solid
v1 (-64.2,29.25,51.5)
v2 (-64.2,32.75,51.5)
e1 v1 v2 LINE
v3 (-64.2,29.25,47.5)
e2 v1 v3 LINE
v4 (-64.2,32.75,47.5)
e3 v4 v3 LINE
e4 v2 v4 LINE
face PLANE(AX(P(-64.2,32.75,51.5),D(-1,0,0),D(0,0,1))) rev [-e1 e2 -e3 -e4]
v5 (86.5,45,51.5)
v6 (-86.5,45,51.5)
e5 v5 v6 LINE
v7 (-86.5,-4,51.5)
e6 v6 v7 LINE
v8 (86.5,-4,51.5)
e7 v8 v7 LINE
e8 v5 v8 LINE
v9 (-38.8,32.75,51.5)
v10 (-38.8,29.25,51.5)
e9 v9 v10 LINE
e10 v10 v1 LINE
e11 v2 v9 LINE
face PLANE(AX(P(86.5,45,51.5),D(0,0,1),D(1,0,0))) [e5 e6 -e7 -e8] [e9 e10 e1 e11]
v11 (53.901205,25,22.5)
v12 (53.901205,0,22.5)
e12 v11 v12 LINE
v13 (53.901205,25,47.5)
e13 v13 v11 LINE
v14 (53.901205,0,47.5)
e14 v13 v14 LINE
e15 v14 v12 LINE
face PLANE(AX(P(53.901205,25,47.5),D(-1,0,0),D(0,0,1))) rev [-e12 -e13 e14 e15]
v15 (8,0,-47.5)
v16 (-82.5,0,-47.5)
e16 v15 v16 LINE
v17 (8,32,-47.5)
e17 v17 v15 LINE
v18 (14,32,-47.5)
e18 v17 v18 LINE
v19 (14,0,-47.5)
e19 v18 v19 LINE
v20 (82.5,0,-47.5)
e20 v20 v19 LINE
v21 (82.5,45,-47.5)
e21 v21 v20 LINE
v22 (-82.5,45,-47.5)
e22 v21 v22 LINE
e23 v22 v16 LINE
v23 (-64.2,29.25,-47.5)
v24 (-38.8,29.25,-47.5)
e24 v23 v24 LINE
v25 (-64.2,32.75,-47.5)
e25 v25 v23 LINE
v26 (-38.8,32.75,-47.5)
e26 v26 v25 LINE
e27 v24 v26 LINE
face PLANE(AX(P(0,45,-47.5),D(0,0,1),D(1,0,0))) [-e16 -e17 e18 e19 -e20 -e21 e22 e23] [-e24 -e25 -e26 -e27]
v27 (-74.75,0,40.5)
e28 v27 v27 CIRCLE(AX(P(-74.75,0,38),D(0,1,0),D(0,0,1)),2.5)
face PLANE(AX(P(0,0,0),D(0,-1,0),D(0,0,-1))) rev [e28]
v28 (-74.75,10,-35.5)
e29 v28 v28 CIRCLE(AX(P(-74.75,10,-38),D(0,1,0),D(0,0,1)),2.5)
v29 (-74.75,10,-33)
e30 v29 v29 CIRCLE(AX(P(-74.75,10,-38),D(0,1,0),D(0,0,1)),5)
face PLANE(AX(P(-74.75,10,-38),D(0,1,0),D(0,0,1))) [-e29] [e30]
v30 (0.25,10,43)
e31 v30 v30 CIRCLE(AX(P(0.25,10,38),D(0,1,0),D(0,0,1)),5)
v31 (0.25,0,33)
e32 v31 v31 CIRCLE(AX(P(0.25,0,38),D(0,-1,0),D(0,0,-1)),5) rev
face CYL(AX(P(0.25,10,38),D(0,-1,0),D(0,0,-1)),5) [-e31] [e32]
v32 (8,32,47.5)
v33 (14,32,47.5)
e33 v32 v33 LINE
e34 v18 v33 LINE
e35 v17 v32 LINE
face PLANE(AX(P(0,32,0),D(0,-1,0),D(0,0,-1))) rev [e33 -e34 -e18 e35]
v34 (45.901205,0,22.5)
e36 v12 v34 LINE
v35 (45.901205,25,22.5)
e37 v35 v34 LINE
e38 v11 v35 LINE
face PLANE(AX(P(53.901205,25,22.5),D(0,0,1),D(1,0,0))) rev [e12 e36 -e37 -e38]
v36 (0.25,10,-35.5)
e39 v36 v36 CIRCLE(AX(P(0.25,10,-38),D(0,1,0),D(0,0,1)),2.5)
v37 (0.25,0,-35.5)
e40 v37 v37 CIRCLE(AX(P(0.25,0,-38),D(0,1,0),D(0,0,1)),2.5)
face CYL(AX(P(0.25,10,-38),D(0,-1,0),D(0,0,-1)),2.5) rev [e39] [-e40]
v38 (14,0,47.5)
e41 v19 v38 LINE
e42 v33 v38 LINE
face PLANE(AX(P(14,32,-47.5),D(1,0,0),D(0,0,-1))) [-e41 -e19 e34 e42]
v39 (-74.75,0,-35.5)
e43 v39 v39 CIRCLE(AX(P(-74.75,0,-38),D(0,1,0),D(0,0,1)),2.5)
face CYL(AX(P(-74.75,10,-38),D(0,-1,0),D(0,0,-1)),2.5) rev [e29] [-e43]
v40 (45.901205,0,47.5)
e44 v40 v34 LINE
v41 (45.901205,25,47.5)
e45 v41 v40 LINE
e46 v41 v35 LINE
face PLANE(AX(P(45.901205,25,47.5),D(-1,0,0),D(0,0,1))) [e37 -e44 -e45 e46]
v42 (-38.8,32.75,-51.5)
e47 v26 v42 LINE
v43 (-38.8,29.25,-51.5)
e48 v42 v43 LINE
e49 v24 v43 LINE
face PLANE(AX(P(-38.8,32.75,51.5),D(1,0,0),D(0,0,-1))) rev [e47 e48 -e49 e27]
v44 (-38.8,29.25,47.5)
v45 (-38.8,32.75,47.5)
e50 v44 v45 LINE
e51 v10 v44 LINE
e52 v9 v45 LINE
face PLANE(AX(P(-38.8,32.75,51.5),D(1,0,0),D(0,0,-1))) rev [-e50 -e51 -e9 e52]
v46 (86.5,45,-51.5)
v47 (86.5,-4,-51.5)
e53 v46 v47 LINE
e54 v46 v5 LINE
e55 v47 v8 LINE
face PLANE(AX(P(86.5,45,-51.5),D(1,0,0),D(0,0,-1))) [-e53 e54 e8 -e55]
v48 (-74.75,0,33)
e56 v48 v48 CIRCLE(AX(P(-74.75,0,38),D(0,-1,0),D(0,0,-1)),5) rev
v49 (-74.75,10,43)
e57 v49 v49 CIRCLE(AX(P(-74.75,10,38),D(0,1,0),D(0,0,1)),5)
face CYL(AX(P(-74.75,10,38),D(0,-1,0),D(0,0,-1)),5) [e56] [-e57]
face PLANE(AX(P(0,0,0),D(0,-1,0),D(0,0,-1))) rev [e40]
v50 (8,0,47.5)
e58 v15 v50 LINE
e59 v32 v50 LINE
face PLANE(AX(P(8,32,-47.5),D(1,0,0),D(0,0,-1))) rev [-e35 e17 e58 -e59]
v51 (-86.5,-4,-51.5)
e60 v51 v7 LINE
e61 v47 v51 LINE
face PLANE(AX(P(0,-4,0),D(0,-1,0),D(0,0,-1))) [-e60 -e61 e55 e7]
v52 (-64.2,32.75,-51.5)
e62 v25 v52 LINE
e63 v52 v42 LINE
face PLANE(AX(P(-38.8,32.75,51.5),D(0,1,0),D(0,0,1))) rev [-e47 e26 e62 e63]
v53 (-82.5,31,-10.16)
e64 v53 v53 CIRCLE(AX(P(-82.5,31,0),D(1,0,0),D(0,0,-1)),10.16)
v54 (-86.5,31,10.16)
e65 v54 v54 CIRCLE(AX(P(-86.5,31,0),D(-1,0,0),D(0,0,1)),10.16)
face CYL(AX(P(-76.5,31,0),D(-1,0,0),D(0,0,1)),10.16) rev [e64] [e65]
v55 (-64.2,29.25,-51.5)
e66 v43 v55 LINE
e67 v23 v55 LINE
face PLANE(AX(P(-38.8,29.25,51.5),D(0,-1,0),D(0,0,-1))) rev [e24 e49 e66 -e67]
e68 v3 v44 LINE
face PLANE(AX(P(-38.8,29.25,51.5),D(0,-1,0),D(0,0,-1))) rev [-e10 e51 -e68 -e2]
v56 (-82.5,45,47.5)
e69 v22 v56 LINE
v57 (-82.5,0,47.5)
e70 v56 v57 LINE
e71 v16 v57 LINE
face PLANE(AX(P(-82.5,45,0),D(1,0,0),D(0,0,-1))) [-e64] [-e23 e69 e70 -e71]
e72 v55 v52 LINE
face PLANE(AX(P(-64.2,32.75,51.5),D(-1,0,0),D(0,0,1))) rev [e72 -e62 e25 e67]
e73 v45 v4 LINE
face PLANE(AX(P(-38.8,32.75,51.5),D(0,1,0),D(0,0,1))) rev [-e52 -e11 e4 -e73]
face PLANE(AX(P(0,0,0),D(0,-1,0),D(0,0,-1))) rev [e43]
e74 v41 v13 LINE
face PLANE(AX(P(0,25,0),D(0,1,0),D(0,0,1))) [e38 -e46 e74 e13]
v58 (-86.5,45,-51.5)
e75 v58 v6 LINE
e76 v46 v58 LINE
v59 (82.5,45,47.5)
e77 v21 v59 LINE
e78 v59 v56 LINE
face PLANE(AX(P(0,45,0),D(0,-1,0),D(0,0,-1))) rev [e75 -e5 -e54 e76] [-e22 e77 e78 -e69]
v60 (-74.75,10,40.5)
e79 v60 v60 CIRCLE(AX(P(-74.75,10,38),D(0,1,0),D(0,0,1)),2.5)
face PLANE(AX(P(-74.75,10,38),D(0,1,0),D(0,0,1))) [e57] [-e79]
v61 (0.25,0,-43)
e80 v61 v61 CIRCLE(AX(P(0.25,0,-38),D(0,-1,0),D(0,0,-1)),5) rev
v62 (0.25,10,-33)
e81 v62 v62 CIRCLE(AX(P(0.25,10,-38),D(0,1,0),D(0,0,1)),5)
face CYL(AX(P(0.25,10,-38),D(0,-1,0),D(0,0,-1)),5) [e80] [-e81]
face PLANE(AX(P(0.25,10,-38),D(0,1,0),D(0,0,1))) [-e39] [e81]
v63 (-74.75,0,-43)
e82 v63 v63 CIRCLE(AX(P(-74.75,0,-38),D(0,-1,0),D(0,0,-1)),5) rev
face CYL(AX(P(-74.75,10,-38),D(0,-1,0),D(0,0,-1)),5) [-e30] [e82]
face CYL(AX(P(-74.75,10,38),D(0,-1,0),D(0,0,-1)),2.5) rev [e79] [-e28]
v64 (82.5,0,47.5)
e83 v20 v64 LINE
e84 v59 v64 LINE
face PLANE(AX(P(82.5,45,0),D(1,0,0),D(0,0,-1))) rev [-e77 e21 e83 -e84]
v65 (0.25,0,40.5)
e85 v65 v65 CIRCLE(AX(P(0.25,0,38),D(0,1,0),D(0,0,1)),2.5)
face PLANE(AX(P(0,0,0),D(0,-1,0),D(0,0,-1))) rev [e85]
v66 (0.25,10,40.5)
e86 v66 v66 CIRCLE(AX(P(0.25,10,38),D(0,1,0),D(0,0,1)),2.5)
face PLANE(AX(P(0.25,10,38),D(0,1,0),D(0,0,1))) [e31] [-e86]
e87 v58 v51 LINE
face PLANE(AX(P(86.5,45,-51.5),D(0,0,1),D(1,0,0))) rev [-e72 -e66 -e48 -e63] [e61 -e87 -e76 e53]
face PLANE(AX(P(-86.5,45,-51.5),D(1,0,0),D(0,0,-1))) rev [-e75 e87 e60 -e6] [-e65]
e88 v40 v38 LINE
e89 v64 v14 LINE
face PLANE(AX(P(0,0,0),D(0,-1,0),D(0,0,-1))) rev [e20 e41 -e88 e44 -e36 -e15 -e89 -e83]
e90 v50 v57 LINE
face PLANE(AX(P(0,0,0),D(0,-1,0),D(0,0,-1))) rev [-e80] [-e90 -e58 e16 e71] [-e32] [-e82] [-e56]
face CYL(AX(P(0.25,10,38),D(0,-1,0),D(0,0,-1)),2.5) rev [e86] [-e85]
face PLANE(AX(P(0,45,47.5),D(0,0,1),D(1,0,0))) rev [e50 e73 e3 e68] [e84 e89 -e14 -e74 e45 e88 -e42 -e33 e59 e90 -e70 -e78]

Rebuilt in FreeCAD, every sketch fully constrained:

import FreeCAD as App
import Part
import Sketcher
from FreeCAD import Vector


def add_polygon(sketch, points):
    """Adds a closed chain of lines whose ends are joined by coincident constraints."""
    first, n = sketch.GeometryCount, len(points)
    for a, b in zip(points, points[1:] + points[:1]):
        sketch.addGeometry(Part.LineSegment(App.Vector(*a, 0), App.Vector(*b, 0)), False)
    for i in range(n):
        sketch.addConstraint(Sketcher.Constraint("Coincident", first + i, 2, first + (i + 1) % n, 1))

doc = App.newDocument("Part")
body = doc.addObject("PartDesign::Body", "Body")

# Sketch on XZ plane
sketch1 = body.newObject("Sketcher::SketchObject", "Sketch")
sketch1.AttachmentSupport = (doc.getObject("XZ_Plane"), [""])
sketch1.MapMode = "FlatFace"
add_polygon(sketch1, [(-86.5, -51.5), (-86.5, 51.5), (86.5, 51.5), (86.5, -51.5)])  # lines 0-3
add_polygon(sketch1, [(82.5, 47.5), (-82.5, 47.5), (-82.5, -47.5), (82.5, -47.5)])  # lines 4-7
sketch1.addConstraint([
    Sketcher.Constraint("Vertical", 0),
    Sketcher.Constraint("Horizontal", 1),
    Sketcher.Constraint("Vertical", 2),
    Sketcher.Constraint("Horizontal", 3),
    Sketcher.Constraint("Horizontal", 4),
    Sketcher.Constraint("Vertical", 5),
    Sketcher.Constraint("Horizontal", 6),
    Sketcher.Constraint("Vertical", 7),
    Sketcher.Constraint("Symmetric", 0, 2, 2, 2, -1, 1),
    Sketcher.Constraint("Symmetric", 4, 2, 6, 2, -1, 1),
    Sketcher.Constraint("DistanceX", 1, 1, 1, 2, 173.0),
    Sketcher.Constraint("DistanceX", 4, 2, 4, 1, 165.0),
    Sketcher.Constraint("DistanceY", 0, 1, 0, 2, 103.0),
    Sketcher.Constraint("DistanceY", 5, 2, 5, 1, 95.0),
])
pad1 = body.newObject("PartDesign::Pad", "Pad")
pad1.Profile = sketch1
pad1.Length = 45
pad1.Reversed = True

# Sketch on XZ plane
sketch2 = body.newObject("Sketcher::SketchObject", "Sketch001")
sketch2.AttachmentSupport = (doc.getObject("XZ_Plane"), [""])
sketch2.MapMode = "FlatFace"
add_polygon(sketch2, [(-86.5, -51.5), (-86.5, 51.5), (86.5, 51.5), (86.5, -51.5)])  # lines 0-3
sketch2.addConstraint([
    Sketcher.Constraint("Vertical", 0),
    Sketcher.Constraint("Horizontal", 1),
    Sketcher.Constraint("Vertical", 2),
    Sketcher.Constraint("Horizontal", 3),
    Sketcher.Constraint("Symmetric", 0, 2, 2, 2, -1, 1),
    Sketcher.Constraint("DistanceX", 1, 1, 1, 2, 173.0),
    Sketcher.Constraint("DistanceY", 0, 1, 0, 2, 103.0),
])
pad2 = body.newObject("PartDesign::Pad", "Pad001")
pad2.Profile = sketch2
pad2.Length = 4

# Sketch on XZ plane
sketch3 = body.newObject("Sketcher::SketchObject", "Sketch002")
sketch3.AttachmentSupport = (doc.getObject("XZ_Plane"), [""])
sketch3.MapMode = "FlatFace"
add_polygon(sketch3, [(8, -47.5), (8, 47.5), (14, 47.5), (14, -47.5)])  # lines 0-3
sketch3.addConstraint([
    Sketcher.Constraint("Vertical", 0),
    Sketcher.Constraint("Horizontal", 1),
    Sketcher.Constraint("Vertical", 2),
    Sketcher.Constraint("Horizontal", 3),
    Sketcher.Constraint("DistanceX", 1, 1, 1, 2, 6.0),
    Sketcher.Constraint("DistanceY", 0, 1, 0, 2, 95.0),
    Sketcher.Constraint("DistanceX", -1, 1, 0, 2, 8.0),
    Sketcher.Constraint("DistanceY", -1, 1, 0, 2, 47.5),
])
pad3 = body.newObject("PartDesign::Pad", "Pad002")
pad3.Profile = sketch3
pad3.Length = 32
pad3.Reversed = True

# Sketch on XZ plane
sketch4 = body.newObject("Sketcher::SketchObject", "Sketch003")
sketch4.AttachmentSupport = (doc.getObject("XZ_Plane"), [""])
sketch4.MapMode = "FlatFace"
sketch4.addGeometry([
    Part.Circle(Vector(-74.75, 38, 0), Vector(0, 0, 1), 5),  # 0
    Part.Circle(Vector(-74.75, 38, 0), Vector(0, 0, 1), 2.5),  # 1
    Part.Circle(Vector(0.25, 38, 0), Vector(0, 0, 1), 5),  # 2
    Part.Circle(Vector(0.25, 38, 0), Vector(0, 0, 1), 2.5),  # 3
    Part.Circle(Vector(-74.75, -38, 0), Vector(0, 0, 1), 5),  # 4
    Part.Circle(Vector(-74.75, -38, 0), Vector(0, 0, 1), 2.5),  # 5
    Part.Circle(Vector(0.25, -38, 0), Vector(0, 0, 1), 5),  # 6
    Part.Circle(Vector(0.25, -38, 0), Vector(0, 0, 1), 2.5),  # 7
], False)
sketch4.addConstraint([
    Sketcher.Constraint("Coincident", 1, 3, 0, 3),
    Sketcher.Constraint("Coincident", 3, 3, 2, 3),
    Sketcher.Constraint("Coincident", 5, 3, 4, 3),
    Sketcher.Constraint("Coincident", 7, 3, 6, 3),
    Sketcher.Constraint("Equal", 0, 2),
    Sketcher.Constraint("Equal", 1, 3),
    Sketcher.Constraint("Equal", 2, 4),
    Sketcher.Constraint("Equal", 3, 5),
    Sketcher.Constraint("Equal", 4, 6),
    Sketcher.Constraint("Equal", 5, 7),
    Sketcher.Constraint("Symmetric", 0, 3, 4, 3, -1),
    Sketcher.Constraint("Symmetric", 2, 3, 6, 3, -1),
    Sketcher.Constraint("Horizontal", 1, 3, 2, 3),
    Sketcher.Constraint("Diameter", 0, 10.0),
    Sketcher.Constraint("Diameter", 1, 5.0),
    Sketcher.Constraint("DistanceY", -1, 1, 0, 3, 38.0),
    Sketcher.Constraint("DistanceX", 0, 3, 2, 3, 75.0),
    Sketcher.Constraint("DistanceX", 0, 3, -1, 1, 74.75),
])
pad4 = body.newObject("PartDesign::Pad", "Pad003")
pad4.Profile = sketch4
pad4.Length = 10
pad4.Reversed = True

# Sketch on XY plane
sketch5 = body.newObject("Sketcher::SketchObject", "Sketch004")
sketch5.AttachmentSupport = (doc.getObject("XY_Plane"), [""])
sketch5.MapMode = "FlatFace"
sketch5.AttachmentOffset = App.Placement(Vector(0, 0, -51.5), App.Rotation())
add_polygon(sketch5, [(-38.8, 32.75), (-38.8, 29.25), (-64.2, 29.25), (-64.2, 32.75)])  # lines 0-3
sketch5.addConstraint([
    Sketcher.Constraint("Vertical", 0),
    Sketcher.Constraint("Horizontal", 1),
    Sketcher.Constraint("Vertical", 2),
    Sketcher.Constraint("Horizontal", 3),
    Sketcher.Constraint("DistanceX", 1, 2, 1, 1, 25.4),
    Sketcher.Constraint("DistanceY", 0, 2, 0, 1, 3.5),
    Sketcher.Constraint("DistanceX", 0, 2, -1, 1, 38.8),
    Sketcher.Constraint("DistanceY", -1, 1, 0, 2, 29.25),
])
pocket1 = body.newObject("PartDesign::Pocket", "Pocket")
pocket1.Profile = sketch5
pocket1.Type = "ThroughAll"
pocket1.Reversed = True

# Sketch on XZ plane
sketch6 = body.newObject("Sketcher::SketchObject", "Sketch005")
sketch6.AttachmentSupport = (doc.getObject("XZ_Plane"), [""])
sketch6.MapMode = "FlatFace"
add_polygon(sketch6, [(45.901205, 22.5), (45.901205, 47.5), (53.901205, 47.5), (53.901205, 22.5)])  # lines 0-3
sketch6.addConstraint([
    Sketcher.Constraint("Vertical", 0),
    Sketcher.Constraint("Horizontal", 1),
    Sketcher.Constraint("Vertical", 2),
    Sketcher.Constraint("Horizontal", 3),
    Sketcher.Constraint("DistanceX", 1, 1, 1, 2, 8.0),
    Sketcher.Constraint("DistanceY", 0, 1, 0, 2, 25.0),
    Sketcher.Constraint("DistanceY", -1, 1, 0, 2, 47.5),
    Sketcher.Constraint("DistanceX", -1, 1, 0, 2, 45.901205),
])
pad5 = body.newObject("PartDesign::Pad", "Pad004")
pad5.Profile = sketch6
pad5.Length = 25
pad5.Reversed = True

# Sketch on YZ plane
sketch7 = body.newObject("Sketcher::SketchObject", "Sketch006")
sketch7.AttachmentSupport = (doc.getObject("YZ_Plane"), [""])
sketch7.MapMode = "FlatFace"
sketch7.AttachmentOffset = App.Placement(Vector(0, 0, -86.5), App.Rotation())
sketch7.addGeometry(Part.Circle(Vector(31, 0, 0), Vector(0, 0, 1), 10.16), False)
sketch7.addConstraint([
    Sketcher.Constraint("PointOnObject", 0, 3, -1),
    Sketcher.Constraint("Diameter", 0, 20.32),
    Sketcher.Constraint("DistanceX", -1, 1, 0, 3, 31.0),
])
pocket2 = body.newObject("PartDesign::Pocket", "Pocket001")
pocket2.Profile = sketch7
pocket2.Length = 10
pocket2.Reversed = True

doc.recompute()
